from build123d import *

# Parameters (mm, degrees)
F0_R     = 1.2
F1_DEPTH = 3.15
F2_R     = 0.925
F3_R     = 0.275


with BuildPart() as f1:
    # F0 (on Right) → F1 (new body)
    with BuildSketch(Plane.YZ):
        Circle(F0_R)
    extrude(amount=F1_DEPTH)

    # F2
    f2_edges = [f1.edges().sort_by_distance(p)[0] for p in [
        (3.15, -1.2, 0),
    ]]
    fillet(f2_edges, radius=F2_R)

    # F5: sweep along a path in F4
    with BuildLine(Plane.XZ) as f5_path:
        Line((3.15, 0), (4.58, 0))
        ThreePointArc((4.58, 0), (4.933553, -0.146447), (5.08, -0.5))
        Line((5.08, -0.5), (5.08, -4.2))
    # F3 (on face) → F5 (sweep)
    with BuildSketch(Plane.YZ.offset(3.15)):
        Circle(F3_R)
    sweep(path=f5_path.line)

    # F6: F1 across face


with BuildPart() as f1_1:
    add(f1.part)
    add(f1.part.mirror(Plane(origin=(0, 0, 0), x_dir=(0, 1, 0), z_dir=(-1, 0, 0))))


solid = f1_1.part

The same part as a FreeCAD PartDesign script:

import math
import FreeCAD as App
import Part
import Sketcher
Q = App.Units.Quantity


def edges_at(feature, points):
    """Names of the edges that pass closest to the given points."""
    edges = feature.Shape.Edges
    near = lambda p: min(range(len(edges)), key=lambda i: edges[i].distToShape(Part.Vertex(*p))[0])
    return sorted({f"Edge{near(p) + 1}" for p in points})

doc = App.newDocument("Part")
body = doc.addObject("PartDesign::Body", "Body")

sketch1 = body.newObject("Sketcher::SketchObject", "Sketch")
sketch1.AttachmentSupport = (doc.getObject("YZ_Plane"), [""])
sketch1.MapMode = "FlatFace"
sketch1.addGeometry(Part.Circle(App.Vector(0, 0, 0), App.Vector(0, 0, 1), 1.2), False)
sketch1.addConstraint([
    Sketcher.Constraint("Coincident", 0, 3, -1, 1),
    Sketcher.Constraint("Diameter", 0, Q("2.4 mm")),
])
pad1 = body.newObject("PartDesign::Pad", "Pad")
pad1.Profile = sketch1
pad1.Length = 3.15
doc.recompute()

fillet = body.newObject("PartDesign::Fillet", "Fillet")
fillet.Base = (pad1, edges_at(pad1, [(3.15, -1.2, 0)]))
fillet.Radius = 0.925

sketch2 = body.newObject("Sketcher::SketchObject", "Sketch001")
sketch2.AttachmentSupport = (doc.getObject("YZ_Plane"), [""])
sketch2.MapMode = "FlatFace"
sketch2.AttachmentOffset = App.Placement(App.Vector(0, 0, 3.15), App.Rotation())
sketch2.addGeometry(Part.Circle(App.Vector(0, 0, 0), App.Vector(0, 0, 1), 0.28), False)
sketch2.addConstraint([
    Sketcher.Constraint("Coincident", 0, 3, -1, 1),
    Sketcher.Constraint("Diameter", 0, Q("0.55 mm")),
])

sketch3 = body.newObject("Sketcher::SketchObject", "Sketch002")
sketch3.AttachmentSupport = (doc.getObject("XZ_Plane"), [""])
sketch3.MapMode = "FlatFace"
sketch3.addGeometry([
    Part.LineSegment(App.Vector(3.1, 0, 0), App.Vector(4.6, 0, 0)),
    Part.ArcOfCircle(Part.Circle(App.Vector(4.6, -0.5, 0), App.Vector(0, 0, 1), 0.5), math.radians(0), math.radians(90)),
    Part.LineSegment(App.Vector(5.1, -0.5, 0), App.Vector(5.1, -4.2, 0)),
], False)
sketch3.addConstraint([
    Sketcher.Constraint("Coincident", 0, 2, 1, 2),
    Sketcher.Constraint("Coincident", 1, 1, 2, 1),
    Sketcher.Constraint("Horizontal", 0),
    Sketcher.Constraint("Vertical", 2),
    Sketcher.Constraint("PointOnObject", 0, 1, -1),
    Sketcher.Constraint("Vertical", 1, 3, 0, 2),
    Sketcher.Constraint("Radius", 1, Q("0.500001 mm")),
    Sketcher.Constraint("DistanceY", 2, 2, 2, 1, Q("3.7 mm")),
    Sketcher.Constraint("DistanceX", 0, 1, 0, 2, Q("1.43 mm")),
    Sketcher.Constraint("DistanceY", 1, 1, -1, 1, Q("0.5 mm")),
    Sketcher.Constraint("DistanceX", -1, 1, 1, 3, Q("4.579999 mm")),
])
doc.recompute()

additivepipe = body.newObject("PartDesign::AdditivePipe", "AdditivePipe")
additivepipe.Profile = sketch2
additivepipe.Spine = (sketch3, ["Edge1", "Edge2", "Edge3"])
body2 = doc.addObject("PartDesign::Body", "Body001")
doc.recompute()

body2.BaseFeature = body
doc.recompute()

mirroring = doc.addObject("Part::Mirroring", "Mirroring")
mirroring.Source = body
mirroring.Base = App.Vector(0, 0, 0)
mirroring.Normal = App.Vector(-1, 0, 0)
body3 = doc.addObject("PartDesign::Body", "Body002")
body3.BaseFeature = mirroring
boolean = body2.newObject("PartDesign::Boolean", "Boolean")
boolean.Type = "Fuse"
boolean.addObjects([body3])
doc.recompute()
mirroring.Visibility = False

doc.recompute()
